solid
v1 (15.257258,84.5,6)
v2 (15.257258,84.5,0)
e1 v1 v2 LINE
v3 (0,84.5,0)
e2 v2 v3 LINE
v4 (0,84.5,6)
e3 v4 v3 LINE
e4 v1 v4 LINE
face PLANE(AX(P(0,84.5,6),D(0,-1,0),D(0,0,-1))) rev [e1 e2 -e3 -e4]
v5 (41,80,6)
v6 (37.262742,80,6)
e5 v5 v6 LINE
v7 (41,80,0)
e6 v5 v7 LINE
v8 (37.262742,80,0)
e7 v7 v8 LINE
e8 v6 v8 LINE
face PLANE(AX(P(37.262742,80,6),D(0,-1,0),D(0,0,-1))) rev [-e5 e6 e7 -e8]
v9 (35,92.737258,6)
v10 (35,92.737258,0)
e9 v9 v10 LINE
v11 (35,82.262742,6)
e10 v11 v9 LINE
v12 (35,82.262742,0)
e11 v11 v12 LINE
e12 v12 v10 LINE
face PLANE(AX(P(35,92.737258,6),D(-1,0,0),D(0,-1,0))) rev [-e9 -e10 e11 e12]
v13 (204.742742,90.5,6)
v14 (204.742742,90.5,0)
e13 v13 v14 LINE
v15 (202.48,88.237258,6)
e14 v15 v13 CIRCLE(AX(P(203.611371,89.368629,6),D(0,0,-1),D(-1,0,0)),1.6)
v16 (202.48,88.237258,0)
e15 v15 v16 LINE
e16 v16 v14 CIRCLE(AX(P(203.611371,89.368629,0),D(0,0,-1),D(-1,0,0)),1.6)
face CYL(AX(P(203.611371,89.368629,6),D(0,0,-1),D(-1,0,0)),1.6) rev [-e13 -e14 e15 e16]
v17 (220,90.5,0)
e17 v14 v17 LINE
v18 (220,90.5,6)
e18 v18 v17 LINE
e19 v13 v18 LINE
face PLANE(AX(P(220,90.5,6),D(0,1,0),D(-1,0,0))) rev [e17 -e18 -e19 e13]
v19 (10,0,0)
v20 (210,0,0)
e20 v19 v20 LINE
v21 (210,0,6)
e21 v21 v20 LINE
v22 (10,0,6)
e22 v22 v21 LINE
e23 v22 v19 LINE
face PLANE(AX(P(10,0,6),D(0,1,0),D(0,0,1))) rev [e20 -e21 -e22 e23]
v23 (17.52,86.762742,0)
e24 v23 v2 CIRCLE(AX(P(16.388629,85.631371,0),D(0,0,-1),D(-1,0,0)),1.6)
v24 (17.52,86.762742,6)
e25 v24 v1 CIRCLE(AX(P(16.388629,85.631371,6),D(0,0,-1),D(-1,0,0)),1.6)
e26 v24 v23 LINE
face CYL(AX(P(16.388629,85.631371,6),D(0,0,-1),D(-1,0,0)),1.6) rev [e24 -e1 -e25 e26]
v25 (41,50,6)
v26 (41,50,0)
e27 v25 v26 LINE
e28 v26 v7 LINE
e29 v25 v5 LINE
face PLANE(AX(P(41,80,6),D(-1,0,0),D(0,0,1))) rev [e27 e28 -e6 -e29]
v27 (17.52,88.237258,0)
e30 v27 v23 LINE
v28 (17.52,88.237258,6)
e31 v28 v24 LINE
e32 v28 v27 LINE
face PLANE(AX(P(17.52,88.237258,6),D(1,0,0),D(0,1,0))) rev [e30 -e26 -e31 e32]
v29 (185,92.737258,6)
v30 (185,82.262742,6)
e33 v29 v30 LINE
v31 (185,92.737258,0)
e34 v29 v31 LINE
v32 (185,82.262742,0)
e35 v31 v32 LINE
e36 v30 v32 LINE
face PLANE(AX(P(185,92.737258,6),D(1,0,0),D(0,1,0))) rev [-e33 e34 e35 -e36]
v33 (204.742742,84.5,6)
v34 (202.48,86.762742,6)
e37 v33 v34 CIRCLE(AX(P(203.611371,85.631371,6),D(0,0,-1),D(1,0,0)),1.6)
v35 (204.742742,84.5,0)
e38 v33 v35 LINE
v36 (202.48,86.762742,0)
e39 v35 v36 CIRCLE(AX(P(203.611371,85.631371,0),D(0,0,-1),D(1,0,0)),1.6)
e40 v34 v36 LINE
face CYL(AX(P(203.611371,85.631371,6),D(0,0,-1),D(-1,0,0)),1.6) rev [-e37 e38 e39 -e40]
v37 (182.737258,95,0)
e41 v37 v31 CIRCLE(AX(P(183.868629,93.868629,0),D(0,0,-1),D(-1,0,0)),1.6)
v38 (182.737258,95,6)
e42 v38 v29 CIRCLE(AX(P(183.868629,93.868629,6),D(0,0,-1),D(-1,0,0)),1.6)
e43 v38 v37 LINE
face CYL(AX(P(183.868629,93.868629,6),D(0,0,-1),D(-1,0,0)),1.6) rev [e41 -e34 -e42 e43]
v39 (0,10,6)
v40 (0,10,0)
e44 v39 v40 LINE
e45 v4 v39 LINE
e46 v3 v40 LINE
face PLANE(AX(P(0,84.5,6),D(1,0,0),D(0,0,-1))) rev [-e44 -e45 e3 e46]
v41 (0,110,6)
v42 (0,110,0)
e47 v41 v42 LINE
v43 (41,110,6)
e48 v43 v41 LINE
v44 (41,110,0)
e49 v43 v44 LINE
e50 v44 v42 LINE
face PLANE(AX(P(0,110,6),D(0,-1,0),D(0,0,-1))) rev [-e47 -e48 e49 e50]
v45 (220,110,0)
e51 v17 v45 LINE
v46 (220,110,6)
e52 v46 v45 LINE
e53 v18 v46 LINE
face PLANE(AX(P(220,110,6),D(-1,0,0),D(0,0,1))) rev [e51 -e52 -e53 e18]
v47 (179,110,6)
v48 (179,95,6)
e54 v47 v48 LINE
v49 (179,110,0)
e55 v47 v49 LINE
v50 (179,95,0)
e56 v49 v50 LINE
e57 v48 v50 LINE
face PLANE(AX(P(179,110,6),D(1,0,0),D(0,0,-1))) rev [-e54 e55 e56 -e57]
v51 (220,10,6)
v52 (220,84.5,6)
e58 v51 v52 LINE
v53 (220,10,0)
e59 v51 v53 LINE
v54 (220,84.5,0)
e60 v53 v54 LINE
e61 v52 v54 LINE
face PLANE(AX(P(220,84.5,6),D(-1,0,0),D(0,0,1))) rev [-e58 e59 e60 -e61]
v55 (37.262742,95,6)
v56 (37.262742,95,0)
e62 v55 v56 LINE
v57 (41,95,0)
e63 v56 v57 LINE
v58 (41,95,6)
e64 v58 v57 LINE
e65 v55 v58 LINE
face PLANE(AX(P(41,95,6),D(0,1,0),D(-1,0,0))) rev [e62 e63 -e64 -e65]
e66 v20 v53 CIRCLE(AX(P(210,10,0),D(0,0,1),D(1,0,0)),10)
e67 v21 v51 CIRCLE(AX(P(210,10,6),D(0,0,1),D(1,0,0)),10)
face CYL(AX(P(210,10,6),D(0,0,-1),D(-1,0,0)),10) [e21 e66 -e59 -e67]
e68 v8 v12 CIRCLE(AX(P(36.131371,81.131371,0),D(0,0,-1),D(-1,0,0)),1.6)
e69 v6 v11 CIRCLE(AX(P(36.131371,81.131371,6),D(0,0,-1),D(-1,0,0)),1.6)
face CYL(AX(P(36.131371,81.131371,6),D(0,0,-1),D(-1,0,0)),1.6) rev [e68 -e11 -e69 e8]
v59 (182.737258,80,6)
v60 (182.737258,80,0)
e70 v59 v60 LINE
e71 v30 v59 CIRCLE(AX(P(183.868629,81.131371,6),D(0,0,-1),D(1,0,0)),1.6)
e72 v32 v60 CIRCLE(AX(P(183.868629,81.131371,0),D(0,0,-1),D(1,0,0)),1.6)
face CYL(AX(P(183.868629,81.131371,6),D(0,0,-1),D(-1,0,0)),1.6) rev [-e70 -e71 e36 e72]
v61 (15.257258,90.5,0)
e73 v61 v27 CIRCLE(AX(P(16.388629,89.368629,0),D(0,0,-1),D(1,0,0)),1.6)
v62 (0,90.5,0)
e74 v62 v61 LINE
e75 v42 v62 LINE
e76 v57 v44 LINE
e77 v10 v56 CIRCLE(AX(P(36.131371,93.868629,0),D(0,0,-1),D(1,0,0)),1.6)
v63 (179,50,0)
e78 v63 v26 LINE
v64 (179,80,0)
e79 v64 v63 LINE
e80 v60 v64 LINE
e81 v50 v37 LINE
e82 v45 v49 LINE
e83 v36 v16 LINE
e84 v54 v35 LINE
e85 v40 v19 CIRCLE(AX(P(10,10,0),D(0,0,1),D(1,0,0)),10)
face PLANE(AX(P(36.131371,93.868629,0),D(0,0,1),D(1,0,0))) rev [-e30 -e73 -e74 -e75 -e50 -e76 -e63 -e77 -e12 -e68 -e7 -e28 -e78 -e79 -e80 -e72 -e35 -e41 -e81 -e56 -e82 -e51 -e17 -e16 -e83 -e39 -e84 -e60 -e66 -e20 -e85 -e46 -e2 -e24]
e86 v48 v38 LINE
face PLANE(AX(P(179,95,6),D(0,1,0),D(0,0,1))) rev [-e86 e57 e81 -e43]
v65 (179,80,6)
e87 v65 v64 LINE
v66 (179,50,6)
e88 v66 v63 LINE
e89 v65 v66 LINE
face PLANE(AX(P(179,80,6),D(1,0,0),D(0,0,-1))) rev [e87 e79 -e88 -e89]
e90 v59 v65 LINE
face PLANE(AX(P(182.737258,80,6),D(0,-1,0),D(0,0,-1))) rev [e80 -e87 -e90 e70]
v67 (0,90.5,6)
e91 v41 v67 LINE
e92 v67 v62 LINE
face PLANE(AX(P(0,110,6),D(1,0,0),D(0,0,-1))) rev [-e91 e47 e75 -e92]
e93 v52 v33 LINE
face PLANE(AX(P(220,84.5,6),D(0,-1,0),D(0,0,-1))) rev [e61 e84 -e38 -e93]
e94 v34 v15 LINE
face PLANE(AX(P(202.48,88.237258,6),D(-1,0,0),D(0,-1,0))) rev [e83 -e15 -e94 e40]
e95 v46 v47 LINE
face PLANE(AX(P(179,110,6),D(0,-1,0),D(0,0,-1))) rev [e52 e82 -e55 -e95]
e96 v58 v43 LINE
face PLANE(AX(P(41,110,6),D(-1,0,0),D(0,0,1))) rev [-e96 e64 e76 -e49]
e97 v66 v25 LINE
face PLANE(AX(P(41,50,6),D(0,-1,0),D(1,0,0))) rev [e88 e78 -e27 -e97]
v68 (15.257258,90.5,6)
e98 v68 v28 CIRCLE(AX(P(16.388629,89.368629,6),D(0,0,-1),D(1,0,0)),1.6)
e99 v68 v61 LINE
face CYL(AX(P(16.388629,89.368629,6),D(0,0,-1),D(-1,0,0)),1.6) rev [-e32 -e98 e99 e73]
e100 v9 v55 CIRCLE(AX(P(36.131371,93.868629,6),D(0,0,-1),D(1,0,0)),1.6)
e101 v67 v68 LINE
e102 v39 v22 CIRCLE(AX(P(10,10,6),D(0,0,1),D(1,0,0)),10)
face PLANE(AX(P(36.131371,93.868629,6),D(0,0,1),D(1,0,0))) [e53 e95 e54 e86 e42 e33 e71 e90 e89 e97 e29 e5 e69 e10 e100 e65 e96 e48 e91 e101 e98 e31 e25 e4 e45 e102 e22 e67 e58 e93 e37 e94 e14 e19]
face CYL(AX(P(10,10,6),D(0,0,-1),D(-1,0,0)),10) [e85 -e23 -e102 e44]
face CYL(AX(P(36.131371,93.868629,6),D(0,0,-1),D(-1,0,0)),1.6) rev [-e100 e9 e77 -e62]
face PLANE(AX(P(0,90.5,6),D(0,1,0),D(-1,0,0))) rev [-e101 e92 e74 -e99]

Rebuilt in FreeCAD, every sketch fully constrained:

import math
import FreeCAD as App
import Part
import Sketcher
from FreeCAD import Vector
Q = App.Units.Quantity

doc = App.newDocument("Part")
params = doc.addObject("Spreadsheet::Sheet", "Params")
for row, (alias, value) in enumerate([
    ("sketch1_radius", "10 mm"),
    ("sketch1_radius2", "1.6 mm"),
    ("sketch1_width", "41 mm"),
    ("sketch1_width2", "200 mm"),
    ("sketch1_height", "15 mm"),
    ("pad1_length", "6 mm"),
], start=1):
    params.set(f"A{row}", alias)
    params.set(f"B{row}", "=" + value)
    params.setAlias(f"B{row}", alias)

body = doc.addObject("PartDesign::Body", "Body")

# Sketch on XY plane
sketch1 = doc.addObject("Sketcher::SketchObject", "Sketch")
body.addObject(sketch1)
sketch1.AttachmentSupport = (doc.XY_Plane, [""])
sketch1.MapMode = "FlatFace"
sketch1.addGeometry([
    Part.LineSegment(Vector(41, 95, 0), Vector(41, 110, 0)),  # 0
    Part.LineSegment(Vector(41, 110, 0), Vector(0, 110, 0)),  # 1
    Part.LineSegment(Vector(0, 110, 0), Vector(0, 90.5, 0)),  # 2
    Part.LineSegment(Vector(0, 90.5, 0), Vector(15.3, 90.5, 0)),  # 3
    Part.ArcOfCircle(Part.Circle(Vector(16.4, 89.4, 0), Vector(0, 0, 1), 1.6), math.radians(-45), math.radians(135)),  # 4
    Part.LineSegment(Vector(17.5, 88.2, 0), Vector(17.5, 86.8, 0)),  # 5
    Part.ArcOfCircle(Part.Circle(Vector(16.4, 85.6, 0), Vector(0, 0, 1), 1.6), math.radians(-135), math.radians(45)),  # 6
    Part.LineSegment(Vector(15.3, 84.5, 0), Vector(0, 84.5, 0)),  # 7
    Part.LineSegment(Vector(0, 84.5, 0), Vector(0, 10, 0)),  # 8
    Part.ArcOfCircle(Part.Circle(Vector(10, 10, 0), Vector(0, 0, 1), 10), math.radians(180), math.radians(270)),  # 9
    Part.LineSegment(Vector(10, 0, 0), Vector(210, 0, 0)),  # 10
    Part.ArcOfCircle(Part.Circle(Vector(210, 10, 0), Vector(0, 0, 1), 10), math.radians(-90), math.radians(0)),  # 11
    Part.LineSegment(Vector(220, 10, 0), Vector(220, 84.5, 0)),  # 12
    Part.LineSegment(Vector(220, 84.5, 0), Vector(204.7, 84.5, 0)),  # 13
    Part.ArcOfCircle(Part.Circle(Vector(203.6, 85.6, 0), Vector(0, 0, 1), 1.6), math.radians(135), math.radians(315)),  # 14
    Part.LineSegment(Vector(202.5, 86.8, 0), Vector(202.5, 88.2, 0)),  # 15
    Part.ArcOfCircle(Part.Circle(Vector(203.6, 89.4, 0), Vector(0, 0, 1), 1.6), math.radians(45), math.radians(225)),  # 16
    Part.LineSegment(Vector(204.7, 90.5, 0), Vector(220, 90.5, 0)),  # 17
    Part.LineSegment(Vector(220, 90.5, 0), Vector(220, 110, 0)),  # 18
    Part.LineSegment(Vector(220, 110, 0), Vector(179, 110, 0)),  # 19
    Part.LineSegment(Vector(179, 110, 0), Vector(179, 95, 0)),  # 20
    Part.LineSegment(Vector(179, 95, 0), Vector(182.7, 95, 0)),  # 21
    Part.ArcOfCircle(Part.Circle(Vector(183.9, 93.9, 0), Vector(0, 0, 1), 1.6), math.radians(-45), math.radians(135)),  # 22
    Part.LineSegment(Vector(185, 92.7, 0), Vector(185, 82.3, 0)),  # 23
    Part.ArcOfCircle(Part.Circle(Vector(183.9, 81.1, 0), Vector(0, 0, 1), 1.6), math.radians(-135), math.radians(45)),  # 24
    Part.LineSegment(Vector(182.7, 80, 0), Vector(179, 80, 0)),  # 25
    Part.LineSegment(Vector(179, 80, 0), Vector(179, 50, 0)),  # 26
    Part.LineSegment(Vector(179, 50, 0), Vector(41, 50, 0)),  # 27
    Part.LineSegment(Vector(41, 50, 0), Vector(41, 80, 0)),  # 28
    Part.LineSegment(Vector(41, 80, 0), Vector(37.3, 80, 0)),  # 29
    Part.ArcOfCircle(Part.Circle(Vector(36.1, 81.1, 0), Vector(0, 0, 1), 1.6), math.radians(135), math.radians(315)),  # 30
    Part.LineSegment(Vector(35, 82.3, 0), Vector(35, 92.7, 0)),  # 31
    Part.ArcOfCircle(Part.Circle(Vector(36.1, 93.9, 0), Vector(0, 0, 1), 1.6), math.radians(45), math.radians(225)),  # 32
    Part.LineSegment(Vector(37.3, 95, 0), Vector(41, 95, 0)),  # 33
], False)
sketch1.addConstraint([
    Sketcher.Constraint("Coincident", 0, 2, 1, 1),
    Sketcher.Constraint("Coincident", 1, 2, 2, 1),
    Sketcher.Constraint("Coincident", 2, 2, 3, 1),
    Sketcher.Constraint("Coincident", 3, 2, 4, 2),
    Sketcher.Constraint("Coincident", 4, 1, 5, 1),
    Sketcher.Constraint("Coincident", 5, 2, 6, 2),
    Sketcher.Constraint("Coincident", 6, 1, 7, 1),
    Sketcher.Constraint("Coincident", 7, 2, 8, 1),
    Sketcher.Constraint("Tangent", 8, 2, 9, 1),
    Sketcher.Constraint("Tangent", 9, 2, 10, 1),
    Sketcher.Constraint("Tangent", 10, 2, 11, 1),
    Sketcher.Constraint("Tangent", 11, 2, 12, 1),
    Sketcher.Constraint("Coincident", 12, 2, 13, 1),
    Sketcher.Constraint("Coincident", 13, 2, 14, 2),
    Sketcher.Constraint("Coincident", 14, 1, 15, 1),
    Sketcher.Constraint("Coincident", 15, 2, 16, 2),
    Sketcher.Constraint("Coincident", 16, 1, 17, 1),
    Sketcher.Constraint("Coincident", 17, 2, 18, 1),
    Sketcher.Constraint("Coincident", 18, 2, 19, 1),
    Sketcher.Constraint("Coincident", 19, 2, 20, 1),
    Sketcher.Constraint("Coincident", 20, 2, 21, 1),
    Sketcher.Constraint("Coincident", 21, 2, 22, 2),
    Sketcher.Constraint("Coincident", 22, 1, 23, 1),
    Sketcher.Constraint("Coincident", 23, 2, 24, 2),
    Sketcher.Constraint("Coincident", 24, 1, 25, 1),
    Sketcher.Constraint("Coincident", 25, 2, 26, 1),
    Sketcher.Constraint("Coincident", 26, 2, 27, 1),
    Sketcher.Constraint("Coincident", 27, 2, 28, 1),
    Sketcher.Constraint("Coincident", 28, 2, 29, 1),
    Sketcher.Constraint("Coincident", 29, 2, 30, 2),
    Sketcher.Constraint("Coincident", 30, 1, 31, 1),
    Sketcher.Constraint("Coincident", 31, 2, 32, 2),
    Sketcher.Constraint("Coincident", 32, 1, 33, 1),
    Sketcher.Constraint("Coincident", 33, 2, 0, 1),
    Sketcher.Constraint("Vertical", 0),
    Sketcher.Constraint("Horizontal", 1),
    Sketcher.Constraint("Vertical", 2),
    Sketcher.Constraint("Horizontal", 3),
    Sketcher.Constraint("Vertical", 5),
    Sketcher.Constraint("Horizontal", 7),
    Sketcher.Constraint("Vertical", 8),
    Sketcher.Constraint("Horizontal", 10),
    Sketcher.Constraint("Vertical", 12),
    Sketcher.Constraint("Horizontal", 13),
    Sketcher.Constraint("Vertical", 15),
    Sketcher.Constraint("Horizontal", 17),
    Sketcher.Constraint("Vertical", 18),
    Sketcher.Constraint("Horizontal", 19),
    Sketcher.Constraint("Vertical", 20),
    Sketcher.Constraint("Horizontal", 21),
    Sketcher.Constraint("Vertical", 23),
    Sketcher.Constraint("Horizontal", 25),
    Sketcher.Constraint("Vertical", 26),
    Sketcher.Constraint("Horizontal", 27),
    Sketcher.Constraint("Vertical", 28),
    Sketcher.Constraint("Horizontal", 29),
    Sketcher.Constraint("Vertical", 31),
    Sketcher.Constraint("Horizontal", 33),
    Sketcher.Constraint("Equal", 4, 6),
    Sketcher.Constraint("Equal", 9, 11),
    Sketcher.Constraint("Equal", 6, 14),
    Sketcher.Constraint("Equal", 14, 16),
    Sketcher.Constraint("Equal", 16, 22),
    Sketcher.Constraint("Equal", 22, 24),
    Sketcher.Constraint("Equal", 24, 30),
    Sketcher.Constraint("Equal", 30, 32),
    Sketcher.Constraint("PointOnObject", 1, 2, -2),
    Sketcher.Constraint("PointOnObject", 7, 2, -2),
    Sketcher.Constraint("PointOnObject", 9, 2, -1),
    Sketcher.Constraint("Horizontal", 6, 3, 14, 3),
    Sketcher.Constraint("Horizontal", 4, 3, 16, 3),
    Sketcher.Constraint("Horizontal", 24, 3, 30, 3),
    Sketcher.Constraint("Horizontal", 22, 3, 32, 3),
    Sketcher.Constraint("Horizontal", 7, 2, 12, 2),
    Sketcher.Constraint("Horizontal", 5, 2, 14, 1),
    Sketcher.Constraint("Horizontal", 4, 1, 15, 2),
    Sketcher.Constraint("Horizontal", 3, 2, 16, 1),
    Sketcher.Constraint("Horizontal", 1, 2, 18, 2),
    Sketcher.Constraint("Horizontal", 25, 2, 28, 2),
    Sketcher.Constraint("Horizontal", 23, 2, 30, 1),
    Sketcher.Constraint("Horizontal", 22, 1, 31, 2),
    Sketcher.Constraint("Horizontal", 21, 2, 32, 1),
    Sketcher.Constraint("Vertical", 4, 3, 6, 3),
    Sketcher.Constraint("Vertical", 22, 3, 24, 3),
    Sketcher.Constraint("Vertical", 3, 2, 6, 1),
    Sketcher.Constraint("Vertical", 12, 2, 17, 2),
    Sketcher.Constraint("Vertical", 21, 2, 24, 1),
    Sketcher.Constraint("Vertical", 20, 2, 25, 2),
    Sketcher.Constraint("Vertical", 0, 2, 27, 2),
    Sketcher.Constraint("Equal", 7, 13),
    Sketcher.Constraint("Equal", 1, 19),
    Sketcher.Constraint("Equal", 25, 29),
    Sketcher.Constraint("Radius", 9, Q("10 mm")),
    Sketcher.Constraint("Radius", 4, Q("1.6 mm")),
    Sketcher.Constraint("DistanceX", 1, 2, 1, 1, Q("41 mm")),
    Sketcher.Constraint("DistanceX", 10, 1, 10, 2, Q("200 mm")),
    Sketcher.Constraint("DistanceY", 0, 1, 0, 2, Q("15 mm")),
    Sketcher.Constraint("DistanceY", 26, 2, 26, 1, Q("30 mm")),
    Sketcher.Constraint("DistanceY", 2, 2, 2, 1, Q("19.5 mm")),
    Sketcher.Constraint("DistanceY", 8, 2, 8, 1, Q("74.5 mm")),
    Sketcher.Constraint("DistanceY", -1, 1, 0, 2, Q("110 mm")),
    Sketcher.Constraint("DistanceX", -1, 1, 22, 1, Q("185 mm")),
    Sketcher.Constraint("DistanceY", -1, 1, 24, 1, Q("80 mm")),
    Sketcher.Constraint("DistanceY", 16, 3, 22, 3, Q("4.5 mm")),
    Sketcher.Constraint("DistanceY", 15, 2, 22, 1, Q("4.5 mm")),
    Sketcher.Constraint("DistanceX", -1, 1, 4, 1, Q("17.52 mm")),
    Sketcher.Constraint("DistanceX", 3, 1, 3, 2, Q("15.257258 mm")),
    Sketcher.Constraint("DistanceX", -1, 1, 4, 3, Q("16.388629 mm")),
])
sketch1.setExpression("Constraints[92]", "Params.sketch1_radius")
sketch1.setExpression("Constraints[93]", "Params.sketch1_radius2")
sketch1.setExpression("Constraints[94]", "Params.sketch1_width")
sketch1.setExpression("Constraints[95]", "Params.sketch1_width2")
sketch1.setExpression("Constraints[96]", "Params.sketch1_height")
pad1 = doc.addObject("PartDesign::Pad", "Pad")
body.addObject(pad1)
pad1.Profile = sketch1
pad1.setExpression("Length", "Params.pad1_length")

doc.recompute()
